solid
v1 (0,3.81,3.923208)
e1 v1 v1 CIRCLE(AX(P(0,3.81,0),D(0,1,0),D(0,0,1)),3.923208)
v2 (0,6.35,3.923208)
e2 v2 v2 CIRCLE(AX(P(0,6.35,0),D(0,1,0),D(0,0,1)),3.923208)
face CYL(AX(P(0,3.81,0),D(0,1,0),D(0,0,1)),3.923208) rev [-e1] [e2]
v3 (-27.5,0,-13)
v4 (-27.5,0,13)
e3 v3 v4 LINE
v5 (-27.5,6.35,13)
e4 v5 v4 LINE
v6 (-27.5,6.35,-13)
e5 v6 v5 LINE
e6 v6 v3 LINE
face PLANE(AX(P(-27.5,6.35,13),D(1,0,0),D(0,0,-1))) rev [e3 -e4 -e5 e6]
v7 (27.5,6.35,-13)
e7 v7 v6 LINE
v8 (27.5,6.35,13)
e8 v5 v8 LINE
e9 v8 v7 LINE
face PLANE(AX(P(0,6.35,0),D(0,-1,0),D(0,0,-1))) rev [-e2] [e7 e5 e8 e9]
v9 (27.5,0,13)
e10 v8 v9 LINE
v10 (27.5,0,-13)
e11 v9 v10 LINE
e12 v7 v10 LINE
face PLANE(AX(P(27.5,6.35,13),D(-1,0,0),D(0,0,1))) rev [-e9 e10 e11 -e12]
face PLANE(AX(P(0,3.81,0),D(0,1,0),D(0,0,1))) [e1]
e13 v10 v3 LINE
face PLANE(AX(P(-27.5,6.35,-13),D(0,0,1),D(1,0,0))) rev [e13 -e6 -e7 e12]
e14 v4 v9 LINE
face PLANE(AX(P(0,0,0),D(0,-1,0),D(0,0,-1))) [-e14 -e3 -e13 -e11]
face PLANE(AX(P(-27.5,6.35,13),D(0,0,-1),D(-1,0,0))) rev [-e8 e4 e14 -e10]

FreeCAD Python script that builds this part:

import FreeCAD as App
import Part
import Sketcher


def add_polygon(sketch, points):
    """Adds a closed chain of lines whose ends are joined by coincident constraints."""
    first, n = sketch.GeometryCount, len(points)
    for a, b in zip(points, points[1:] + points[:1]):
        sketch.addGeometry(Part.LineSegment(App.Vector(*a, 0), App.Vector(*b, 0)), False)
    for i in range(n):
        sketch.addConstraint(Sketcher.Constraint("Coincident", first + i, 2, first + (i + 1) % n, 1))

doc = App.newDocument("Part")
params = doc.addObject("Spreadsheet::Sheet", "Params")
for row, (alias, value) in enumerate([
    ("sketch1_width", "55 mm"),
    ("sketch1_height", "26 mm"),
    ("pad1_length", "6.35 mm"),
    ("pocket1_length", "2.54 mm"),
], start=1):
    params.set(f"A{row}", alias)
    params.set(f"B{row}", "=" + value)
    params.setAlias(f"B{row}", alias)

body = doc.addObject("PartDesign::Body", "Body")

# Sketch on XZ plane
sketch1 = doc.addObject("Sketcher::SketchObject", "Sketch")
body.addObject(sketch1)
sketch1.AttachmentSupport = (doc.XZ_Plane, [""])
sketch1.MapMode = "FlatFace"
add_polygon(sketch1, [(-28, -13), (-28, 13), (28, 13), (28, -13)])  # lines 0-3
sketch1.addConstraint(Sketcher.Constraint("Vertical", 0))
sketch1.addConstraint(Sketcher.Constraint("Horizontal", 1))
sketch1.addConstraint(Sketcher.Constraint("Vertical", 2))
sketch1.addConstraint(Sketcher.Constraint("Horizontal", 3))
sketch1.addConstraint(Sketcher.Constraint("Symmetric", 0, 2, 2, 2, -1, 1))
sketch1.addConstraint(Sketcher.Constraint("DistanceX", 1, 1, 1, 2, 55.0))
sketch1.addConstraint(Sketcher.Constraint("DistanceY", 0, 1, 0, 2, 26.0))
sketch1.setExpression("Constraints[9]", "Params.sketch1_width")
sketch1.setExpression("Constraints[10]", "Params.sketch1_height")
pad1 = doc.addObject("PartDesign::Pad", "Pad")
body.addObject(pad1)
pad1.Profile = sketch1
pad1.setExpression("Length", "Params.pad1_length")
pad1.Reversed = True

# Sketch on XZ plane
sketch2 = doc.addObject("Sketcher::SketchObject", "Sketch001")
body.addObject(sketch2)
sketch2.AttachmentSupport = (doc.XZ_Plane, [""])
sketch2.MapMode = "FlatFace"
sketch2.AttachmentOffset = App.Placement(App.Vector(0, 0, -6.35), App.Rotation())
sketch2.addGeometry(Part.Circle(App.Vector(0, 0, 0), App.Vector(0, 0, 1), 3.9), False)
sketch2.addConstraint(Sketcher.Constraint("Coincident", 0, 3, -1, 1))
sketch2.addConstraint(Sketcher.Constraint("Diameter", 0, 7.846416))
pocket1 = doc.addObject("PartDesign::Pocket", "Pocket")
body.addObject(pocket1)
pocket1.Profile = sketch2
pocket1.setExpression("Length", "Params.pocket1_length")
pocket1.Reversed = True

doc.recompute()
